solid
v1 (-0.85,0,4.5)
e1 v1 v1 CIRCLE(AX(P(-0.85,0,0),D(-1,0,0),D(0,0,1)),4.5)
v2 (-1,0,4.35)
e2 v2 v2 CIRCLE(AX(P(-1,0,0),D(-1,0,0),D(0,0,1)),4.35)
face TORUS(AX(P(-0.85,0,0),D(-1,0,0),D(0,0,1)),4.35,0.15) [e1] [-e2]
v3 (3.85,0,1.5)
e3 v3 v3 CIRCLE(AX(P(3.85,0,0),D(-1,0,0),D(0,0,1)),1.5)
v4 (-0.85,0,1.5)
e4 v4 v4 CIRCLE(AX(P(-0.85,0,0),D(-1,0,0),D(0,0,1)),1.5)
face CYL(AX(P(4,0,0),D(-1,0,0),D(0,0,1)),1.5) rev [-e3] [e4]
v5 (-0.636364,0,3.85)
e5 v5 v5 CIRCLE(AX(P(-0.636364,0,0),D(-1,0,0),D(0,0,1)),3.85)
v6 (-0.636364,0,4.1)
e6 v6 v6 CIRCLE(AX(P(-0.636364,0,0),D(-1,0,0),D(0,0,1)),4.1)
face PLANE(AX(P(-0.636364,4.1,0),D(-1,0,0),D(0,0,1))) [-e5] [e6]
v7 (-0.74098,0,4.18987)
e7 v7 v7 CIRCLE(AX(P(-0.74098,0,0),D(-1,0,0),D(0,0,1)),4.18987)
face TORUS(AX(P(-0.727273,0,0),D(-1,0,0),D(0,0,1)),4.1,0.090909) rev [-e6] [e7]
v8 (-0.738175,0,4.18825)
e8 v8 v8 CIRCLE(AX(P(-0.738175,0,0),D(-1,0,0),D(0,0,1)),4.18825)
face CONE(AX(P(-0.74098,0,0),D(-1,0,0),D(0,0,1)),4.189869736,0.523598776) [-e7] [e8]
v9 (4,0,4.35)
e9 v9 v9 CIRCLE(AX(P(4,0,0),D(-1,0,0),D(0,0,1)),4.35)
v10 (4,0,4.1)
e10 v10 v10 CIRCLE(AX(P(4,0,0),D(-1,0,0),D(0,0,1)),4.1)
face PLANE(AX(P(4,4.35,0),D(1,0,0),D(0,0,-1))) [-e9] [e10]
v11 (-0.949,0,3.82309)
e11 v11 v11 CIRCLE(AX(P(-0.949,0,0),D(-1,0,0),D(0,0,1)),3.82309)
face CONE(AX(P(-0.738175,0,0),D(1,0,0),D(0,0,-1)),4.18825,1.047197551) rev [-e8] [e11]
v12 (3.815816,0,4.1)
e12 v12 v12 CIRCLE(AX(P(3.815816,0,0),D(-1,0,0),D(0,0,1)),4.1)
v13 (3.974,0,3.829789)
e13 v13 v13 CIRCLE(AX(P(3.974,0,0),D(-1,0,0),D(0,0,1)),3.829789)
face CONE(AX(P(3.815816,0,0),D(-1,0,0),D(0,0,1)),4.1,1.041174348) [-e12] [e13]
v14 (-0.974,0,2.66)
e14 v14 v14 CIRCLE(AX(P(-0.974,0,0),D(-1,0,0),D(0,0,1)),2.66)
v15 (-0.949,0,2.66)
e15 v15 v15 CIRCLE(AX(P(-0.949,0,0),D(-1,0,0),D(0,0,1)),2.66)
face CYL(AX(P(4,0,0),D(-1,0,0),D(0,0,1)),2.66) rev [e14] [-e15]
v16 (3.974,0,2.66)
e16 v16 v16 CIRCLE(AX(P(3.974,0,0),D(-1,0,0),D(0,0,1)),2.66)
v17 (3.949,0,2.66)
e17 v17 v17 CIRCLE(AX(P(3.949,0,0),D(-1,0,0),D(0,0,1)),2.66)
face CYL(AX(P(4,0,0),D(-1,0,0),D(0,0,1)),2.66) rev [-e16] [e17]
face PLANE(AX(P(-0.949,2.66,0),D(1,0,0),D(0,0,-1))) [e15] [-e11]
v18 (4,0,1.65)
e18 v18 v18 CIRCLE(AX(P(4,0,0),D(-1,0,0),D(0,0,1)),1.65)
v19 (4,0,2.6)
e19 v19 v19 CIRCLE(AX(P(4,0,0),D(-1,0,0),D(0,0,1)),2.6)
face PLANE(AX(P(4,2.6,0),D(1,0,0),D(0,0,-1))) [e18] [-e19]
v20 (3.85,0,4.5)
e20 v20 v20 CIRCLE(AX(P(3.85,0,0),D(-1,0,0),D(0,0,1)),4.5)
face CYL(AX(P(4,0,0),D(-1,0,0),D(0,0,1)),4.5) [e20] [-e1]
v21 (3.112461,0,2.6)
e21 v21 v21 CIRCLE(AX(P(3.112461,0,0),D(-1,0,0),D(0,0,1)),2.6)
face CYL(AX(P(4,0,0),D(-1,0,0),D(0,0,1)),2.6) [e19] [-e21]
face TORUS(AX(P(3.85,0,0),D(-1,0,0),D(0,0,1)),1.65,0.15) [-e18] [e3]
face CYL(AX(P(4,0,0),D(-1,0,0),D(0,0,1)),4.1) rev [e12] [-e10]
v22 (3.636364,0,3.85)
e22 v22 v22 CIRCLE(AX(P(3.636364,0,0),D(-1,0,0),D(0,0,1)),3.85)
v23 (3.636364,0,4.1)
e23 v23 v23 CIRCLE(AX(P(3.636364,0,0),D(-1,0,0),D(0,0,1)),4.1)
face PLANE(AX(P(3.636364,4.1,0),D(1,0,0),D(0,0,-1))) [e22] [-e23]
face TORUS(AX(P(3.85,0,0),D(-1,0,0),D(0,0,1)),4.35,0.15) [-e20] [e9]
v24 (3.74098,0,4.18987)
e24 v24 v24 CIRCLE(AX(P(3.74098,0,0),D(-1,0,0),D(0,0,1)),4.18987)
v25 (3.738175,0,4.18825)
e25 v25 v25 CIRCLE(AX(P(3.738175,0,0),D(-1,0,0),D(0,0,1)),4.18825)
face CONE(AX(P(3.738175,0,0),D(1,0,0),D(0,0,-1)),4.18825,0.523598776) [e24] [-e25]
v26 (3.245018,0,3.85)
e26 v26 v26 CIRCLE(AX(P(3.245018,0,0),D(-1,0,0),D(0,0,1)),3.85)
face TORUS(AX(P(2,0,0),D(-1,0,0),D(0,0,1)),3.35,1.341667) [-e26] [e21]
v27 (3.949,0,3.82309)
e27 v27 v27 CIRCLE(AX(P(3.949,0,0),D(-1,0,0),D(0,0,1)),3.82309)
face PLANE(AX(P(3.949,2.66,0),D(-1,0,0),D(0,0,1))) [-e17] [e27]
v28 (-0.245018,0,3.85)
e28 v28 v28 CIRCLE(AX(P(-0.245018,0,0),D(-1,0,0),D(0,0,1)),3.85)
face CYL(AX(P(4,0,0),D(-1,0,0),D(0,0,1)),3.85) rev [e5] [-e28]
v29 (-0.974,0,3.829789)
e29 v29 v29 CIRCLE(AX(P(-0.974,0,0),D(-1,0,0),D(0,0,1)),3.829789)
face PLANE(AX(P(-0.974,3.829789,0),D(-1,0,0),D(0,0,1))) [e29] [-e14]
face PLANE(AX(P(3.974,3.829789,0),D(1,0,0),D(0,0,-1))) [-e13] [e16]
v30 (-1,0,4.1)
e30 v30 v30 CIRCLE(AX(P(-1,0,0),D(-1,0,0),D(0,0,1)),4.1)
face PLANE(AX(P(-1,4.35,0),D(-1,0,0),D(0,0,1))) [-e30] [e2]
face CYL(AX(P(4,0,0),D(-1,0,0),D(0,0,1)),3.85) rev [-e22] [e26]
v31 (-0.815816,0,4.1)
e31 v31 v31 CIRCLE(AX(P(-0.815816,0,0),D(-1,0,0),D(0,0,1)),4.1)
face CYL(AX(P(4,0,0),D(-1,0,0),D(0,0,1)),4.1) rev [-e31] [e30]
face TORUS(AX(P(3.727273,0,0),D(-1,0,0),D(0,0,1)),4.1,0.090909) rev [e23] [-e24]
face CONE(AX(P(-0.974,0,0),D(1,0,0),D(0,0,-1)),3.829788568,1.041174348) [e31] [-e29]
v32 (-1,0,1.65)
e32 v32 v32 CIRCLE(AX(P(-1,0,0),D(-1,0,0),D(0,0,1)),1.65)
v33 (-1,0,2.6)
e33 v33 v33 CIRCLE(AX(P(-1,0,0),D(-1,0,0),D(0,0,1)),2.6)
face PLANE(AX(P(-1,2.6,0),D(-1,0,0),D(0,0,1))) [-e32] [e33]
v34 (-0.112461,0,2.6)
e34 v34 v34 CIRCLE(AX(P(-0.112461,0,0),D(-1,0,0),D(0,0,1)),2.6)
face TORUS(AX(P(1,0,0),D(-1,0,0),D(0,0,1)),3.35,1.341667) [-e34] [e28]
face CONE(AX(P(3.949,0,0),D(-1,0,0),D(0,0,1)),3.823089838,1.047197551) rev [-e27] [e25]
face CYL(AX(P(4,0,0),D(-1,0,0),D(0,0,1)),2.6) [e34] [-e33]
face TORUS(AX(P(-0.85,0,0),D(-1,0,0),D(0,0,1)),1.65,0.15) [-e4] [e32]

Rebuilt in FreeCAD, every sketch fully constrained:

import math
import FreeCAD as App
import Part
import Sketcher

V = App.Vector
Q = App.Units.Quantity

doc = App.newDocument("Part")
body = doc.addObject("PartDesign::Body", "Body")

sketch1 = body.newObject("Sketcher::SketchObject", "Sketch")
sketch1.AttachmentSupport = (doc.getObject("XY_Plane"), [""])
sketch1.MapMode = "FlatFace"
sketch1.addGeometry([
    Part.LineSegment(V(4, 2.6, 0), V(4, 1.65, 0)),
    Part.ArcOfCircle(Part.Circle(V(3.85, 1.65, 0), V(0, 0, 1), 0.15), math.radians(-90), math.radians(0)),
    Part.LineSegment(V(3.85, 1.5, 0), V(-0.85, 1.5, 0)),
    Part.ArcOfCircle(Part.Circle(V(-0.85, 1.65, 0), V(0, 0, 1), 0.15), math.radians(-180), math.radians(-90)),
    Part.LineSegment(V(-1, 1.65, 0), V(-1, 2.6, 0)),
    Part.LineSegment(V(-1, 2.6, 0), V(-0.1125, 2.6, 0)),
    Part.ArcOfCircle(Part.Circle(V(1, 3.35, 0), V(0, 0, 1), 1.3417), math.radians(158), math.radians(214)),
    Part.LineSegment(V(-0.245, 3.85, 0), V(-0.6364, 3.85, 0)),
    Part.LineSegment(V(-0.6364, 3.85, 0), V(-0.6364, 4.1, 0)),
    Part.ArcOfCircle(Part.Circle(V(-0.7273, 4.1, 0), V(0, 0, 1), 0.0909), math.radians(0), math.radians(99)),
    Part.LineSegment(V(-0.741, 4.1899, 0), V(-0.7382, 4.1883, 0)),
    Part.LineSegment(V(-0.7382, 4.1883, 0), V(-0.949, 3.8231, 0)),
    Part.LineSegment(V(-0.949, 3.8231, 0), V(-0.949, 2.66, 0)),
    Part.LineSegment(V(-0.949, 2.66, 0), V(-0.974, 2.66, 0)),
    Part.LineSegment(V(-0.974, 2.66, 0), V(-0.974, 3.8298, 0)),
    Part.LineSegment(V(-0.974, 3.8298, 0), V(-0.8158, 4.1, 0)),
    Part.LineSegment(V(-0.8158, 4.1, 0), V(-1, 4.1, 0)),
    Part.LineSegment(V(-1, 4.1, 0), V(-1, 4.35, 0)),
    Part.ArcOfCircle(Part.Circle(V(-0.85, 4.35, 0), V(0, 0, 1), 0.15), math.radians(90), math.radians(180)),
    Part.LineSegment(V(-0.85, 4.5, 0), V(3.85, 4.5, 0)),
    Part.ArcOfCircle(Part.Circle(V(3.85, 4.35, 0), V(0, 0, 1), 0.15), math.radians(0), math.radians(90)),
    Part.LineSegment(V(4, 4.35, 0), V(4, 4.1, 0)),
    Part.LineSegment(V(4, 4.1, 0), V(3.8158, 4.1, 0)),
    Part.LineSegment(V(3.8158, 4.1, 0), V(3.974, 3.8298, 0)),
    Part.LineSegment(V(3.974, 3.8298, 0), V(3.974, 2.66, 0)),
    Part.LineSegment(V(3.974, 2.66, 0), V(3.949, 2.66, 0)),
    Part.LineSegment(V(3.949, 2.66, 0), V(3.949, 3.8231, 0)),
    Part.LineSegment(V(3.949, 3.8231, 0), V(3.7382, 4.1883, 0)),
    Part.LineSegment(V(3.7382, 4.1883, 0), V(3.741, 4.1899, 0)),
    Part.ArcOfCircle(Part.Circle(V(3.7273, 4.1, 0), V(0, 0, 1), 0.0909), math.radians(81), math.radians(180)),
    Part.LineSegment(V(3.6364, 4.1, 0), V(3.6364, 3.85, 0)),
    Part.LineSegment(V(3.6364, 3.85, 0), V(3.245, 3.85, 0)),
    Part.ArcOfCircle(Part.Circle(V(2, 3.35, 0), V(0, 0, 1), 1.3417), math.radians(-34), math.radians(22)),
    Part.LineSegment(V(3.1125, 2.6, 0), V(4, 2.6, 0)),
], False)
sketch1.addConstraint([
    Sketcher.Constraint("Tangent", 0, 2, 1, 2),
    Sketcher.Constraint("Tangent", 1, 1, 2, 1),
    Sketcher.Constraint("Tangent", 2, 2, 3, 2),
    Sketcher.Constraint("Tangent", 3, 1, 4, 1),
    Sketcher.Constraint("Coincident", 4, 2, 5, 1),
    Sketcher.Constraint("Coincident", 5, 2, 6, 2),
    Sketcher.Constraint("Coincident", 6, 1, 7, 1),
    Sketcher.Constraint("Coincident", 7, 2, 8, 1),
    Sketcher.Constraint("Tangent", 8, 2, 9, 1),
    Sketcher.Constraint("Coincident", 9, 2, 10, 1),
    Sketcher.Constraint("Coincident", 10, 2, 11, 1),
    Sketcher.Constraint("Coincident", 11, 2, 12, 1),
    Sketcher.Constraint("Coincident", 12, 2, 13, 1),
    Sketcher.Constraint("Coincident", 13, 2, 14, 1),
    Sketcher.Constraint("Coincident", 14, 2, 15, 1),
    Sketcher.Constraint("Coincident", 15, 2, 16, 1),
    Sketcher.Constraint("Coincident", 16, 2, 17, 1),
    Sketcher.Constraint("Tangent", 17, 2, 18, 2),
    Sketcher.Constraint("Tangent", 18, 1, 19, 1),
    Sketcher.Constraint("Tangent", 19, 2, 20, 2),
    Sketcher.Constraint("Tangent", 20, 1, 21, 1),
    Sketcher.Constraint("Coincident", 21, 2, 22, 1),
    Sketcher.Constraint("Coincident", 22, 2, 23, 1),
    Sketcher.Constraint("Coincident", 23, 2, 24, 1),
    Sketcher.Constraint("Coincident", 24, 2, 25, 1),
    Sketcher.Constraint("Coincident", 25, 2, 26, 1),
    Sketcher.Constraint("Coincident", 26, 2, 27, 1),
    Sketcher.Constraint("Coincident", 27, 2, 28, 1),
    Sketcher.Constraint("Coincident", 28, 2, 29, 1),
    Sketcher.Constraint("Tangent", 29, 2, 30, 1),
    Sketcher.Constraint("Coincident", 30, 2, 31, 1),
    Sketcher.Constraint("Coincident", 31, 2, 32, 2),
    Sketcher.Constraint("Coincident", 32, 1, 33, 1),
    Sketcher.Constraint("Coincident", 33, 2, 0, 1),
    Sketcher.Constraint("Vertical", 0),
    Sketcher.Constraint("Horizontal", 2),
    Sketcher.Constraint("Vertical", 4),
    Sketcher.Constraint("Horizontal", 5),
    Sketcher.Constraint("Horizontal", 7),
    Sketcher.Constraint("Vertical", 8),
    Sketcher.Constraint("Vertical", 12),
    Sketcher.Constraint("Horizontal", 13),
    Sketcher.Constraint("Vertical", 14),
    Sketcher.Constraint("Horizontal", 16),
    Sketcher.Constraint("Vertical", 17),
    Sketcher.Constraint("Horizontal", 19),
    Sketcher.Constraint("Vertical", 21),
    Sketcher.Constraint("Horizontal", 22),
    Sketcher.Constraint("Vertical", 24),
    Sketcher.Constraint("Horizontal", 25),
    Sketcher.Constraint("Vertical", 26),
    Sketcher.Constraint("Vertical", 30),
    Sketcher.Constraint("Horizontal", 31),
    Sketcher.Constraint("Horizontal", 33),
    Sketcher.Constraint("Equal", 1, 3),
    Sketcher.Constraint("Equal", 3, 18),
    Sketcher.Constraint("Equal", 18, 20),
    Sketcher.Constraint("Equal", 9, 29),
    Sketcher.Constraint("Equal", 6, 32),
    Sketcher.Constraint("Perpendicular", 10, 11),
    Sketcher.Constraint("Perpendicular", 27, 28),
    Sketcher.Constraint("Horizontal", 9, 3, 29, 3),
    Sketcher.Constraint("Horizontal", 6, 3, 32, 3),
    Sketcher.Constraint("Horizontal", 8, 2, 15, 2),
    Sketcher.Constraint("Horizontal", 16, 2, 21, 2),
    Sketcher.Constraint("Horizontal", 14, 2, 23, 2),
    Sketcher.Constraint("Horizontal", 13, 2, 24, 2),
    Sketcher.Constraint("Horizontal", 11, 2, 26, 2),
    Sketcher.Constraint("Horizontal", 10, 2, 27, 2),
    Sketcher.Constraint("Horizontal", 9, 2, 28, 2),
    Sketcher.Constraint("Horizontal", 7, 2, 30, 2),
    Sketcher.Constraint("Horizontal", 5, 2, 32, 1),
    Sketcher.Constraint("Vertical", 3, 3, 18, 3),
    Sketcher.Constraint("Vertical", 1, 3, 20, 3),
    Sketcher.Constraint("Equal", 16, 22),
    Sketcher.Constraint("Equal", 13, 25),
    Sketcher.Constraint("Equal", 7, 31),
    Sketcher.Constraint("Equal", 5, 33),
    Sketcher.Constraint("Equal", 8, 17),
    Sketcher.Constraint("Equal", 15, 23),
    Sketcher.Constraint("Angle", 10, Q("-30 deg")),
    Sketcher.Constraint("Radius", 1, Q("0.15 mm")),
    Sketcher.Constraint("DistanceX", 2, 2, 2, 1, Q("4.7 mm")),
    Sketcher.Constraint("DistanceX", -1, 1, 6, 3, Q("1 mm")),
    Sketcher.Constraint("DistanceX", -1, 1, 32, 3, Q("2 mm")),
    Sketcher.Constraint("DistanceY", 6, 3, 18, 3, Q("1 mm")),
    Sketcher.Constraint("DistanceY", 0, 2, 0, 1, Q("0.95 mm")),
    Sketcher.Constraint("DistanceY", 8, 1, 8, 2, Q("0.25 mm")),
    Sketcher.Constraint("DistanceY", -1, 1, 9, 3, Q("4.1 mm")),
    Sketcher.Constraint("DistanceY", -1, 1, 1, 1, Q("1.5 mm")),
    Sketcher.Constraint("DistanceX", 13, 2, 13, 1, Q("0.025 mm")),
    Sketcher.Constraint("DistanceY", -1, 1, 12, 2, Q("2.66 mm")),
    Sketcher.Constraint("Radius", 9, Q("0.090909 mm")),
    Sketcher.Constraint("DistanceX", 11, 2, -1, 1, Q("0.949 mm")),
    Sketcher.Constraint("Radius", 6, Q("1.341667 mm")),
    Sketcher.Constraint("DistanceY", 12, 2, 12, 1, Q("1.16309 mm")),
    Sketcher.Constraint("DistanceY", 14, 1, 14, 2, Q("1.169789 mm")),
    Sketcher.Constraint("DistanceX", 10, 2, 9, 3, Q("0.010902 mm")),
    Sketcher.Constraint("Distance", 10, Q("0.003239 mm")),
    Sketcher.Constraint("DistanceX", 16, 2, 16, 1, Q("0.184184 mm")),
])
revolution = body.newObject("PartDesign::Revolution", "Revolution")
revolution.Profile = sketch1
revolution.ReferenceAxis = (sketch1, ["H_Axis"])
revolution.Angle = 360

doc.recompute()
